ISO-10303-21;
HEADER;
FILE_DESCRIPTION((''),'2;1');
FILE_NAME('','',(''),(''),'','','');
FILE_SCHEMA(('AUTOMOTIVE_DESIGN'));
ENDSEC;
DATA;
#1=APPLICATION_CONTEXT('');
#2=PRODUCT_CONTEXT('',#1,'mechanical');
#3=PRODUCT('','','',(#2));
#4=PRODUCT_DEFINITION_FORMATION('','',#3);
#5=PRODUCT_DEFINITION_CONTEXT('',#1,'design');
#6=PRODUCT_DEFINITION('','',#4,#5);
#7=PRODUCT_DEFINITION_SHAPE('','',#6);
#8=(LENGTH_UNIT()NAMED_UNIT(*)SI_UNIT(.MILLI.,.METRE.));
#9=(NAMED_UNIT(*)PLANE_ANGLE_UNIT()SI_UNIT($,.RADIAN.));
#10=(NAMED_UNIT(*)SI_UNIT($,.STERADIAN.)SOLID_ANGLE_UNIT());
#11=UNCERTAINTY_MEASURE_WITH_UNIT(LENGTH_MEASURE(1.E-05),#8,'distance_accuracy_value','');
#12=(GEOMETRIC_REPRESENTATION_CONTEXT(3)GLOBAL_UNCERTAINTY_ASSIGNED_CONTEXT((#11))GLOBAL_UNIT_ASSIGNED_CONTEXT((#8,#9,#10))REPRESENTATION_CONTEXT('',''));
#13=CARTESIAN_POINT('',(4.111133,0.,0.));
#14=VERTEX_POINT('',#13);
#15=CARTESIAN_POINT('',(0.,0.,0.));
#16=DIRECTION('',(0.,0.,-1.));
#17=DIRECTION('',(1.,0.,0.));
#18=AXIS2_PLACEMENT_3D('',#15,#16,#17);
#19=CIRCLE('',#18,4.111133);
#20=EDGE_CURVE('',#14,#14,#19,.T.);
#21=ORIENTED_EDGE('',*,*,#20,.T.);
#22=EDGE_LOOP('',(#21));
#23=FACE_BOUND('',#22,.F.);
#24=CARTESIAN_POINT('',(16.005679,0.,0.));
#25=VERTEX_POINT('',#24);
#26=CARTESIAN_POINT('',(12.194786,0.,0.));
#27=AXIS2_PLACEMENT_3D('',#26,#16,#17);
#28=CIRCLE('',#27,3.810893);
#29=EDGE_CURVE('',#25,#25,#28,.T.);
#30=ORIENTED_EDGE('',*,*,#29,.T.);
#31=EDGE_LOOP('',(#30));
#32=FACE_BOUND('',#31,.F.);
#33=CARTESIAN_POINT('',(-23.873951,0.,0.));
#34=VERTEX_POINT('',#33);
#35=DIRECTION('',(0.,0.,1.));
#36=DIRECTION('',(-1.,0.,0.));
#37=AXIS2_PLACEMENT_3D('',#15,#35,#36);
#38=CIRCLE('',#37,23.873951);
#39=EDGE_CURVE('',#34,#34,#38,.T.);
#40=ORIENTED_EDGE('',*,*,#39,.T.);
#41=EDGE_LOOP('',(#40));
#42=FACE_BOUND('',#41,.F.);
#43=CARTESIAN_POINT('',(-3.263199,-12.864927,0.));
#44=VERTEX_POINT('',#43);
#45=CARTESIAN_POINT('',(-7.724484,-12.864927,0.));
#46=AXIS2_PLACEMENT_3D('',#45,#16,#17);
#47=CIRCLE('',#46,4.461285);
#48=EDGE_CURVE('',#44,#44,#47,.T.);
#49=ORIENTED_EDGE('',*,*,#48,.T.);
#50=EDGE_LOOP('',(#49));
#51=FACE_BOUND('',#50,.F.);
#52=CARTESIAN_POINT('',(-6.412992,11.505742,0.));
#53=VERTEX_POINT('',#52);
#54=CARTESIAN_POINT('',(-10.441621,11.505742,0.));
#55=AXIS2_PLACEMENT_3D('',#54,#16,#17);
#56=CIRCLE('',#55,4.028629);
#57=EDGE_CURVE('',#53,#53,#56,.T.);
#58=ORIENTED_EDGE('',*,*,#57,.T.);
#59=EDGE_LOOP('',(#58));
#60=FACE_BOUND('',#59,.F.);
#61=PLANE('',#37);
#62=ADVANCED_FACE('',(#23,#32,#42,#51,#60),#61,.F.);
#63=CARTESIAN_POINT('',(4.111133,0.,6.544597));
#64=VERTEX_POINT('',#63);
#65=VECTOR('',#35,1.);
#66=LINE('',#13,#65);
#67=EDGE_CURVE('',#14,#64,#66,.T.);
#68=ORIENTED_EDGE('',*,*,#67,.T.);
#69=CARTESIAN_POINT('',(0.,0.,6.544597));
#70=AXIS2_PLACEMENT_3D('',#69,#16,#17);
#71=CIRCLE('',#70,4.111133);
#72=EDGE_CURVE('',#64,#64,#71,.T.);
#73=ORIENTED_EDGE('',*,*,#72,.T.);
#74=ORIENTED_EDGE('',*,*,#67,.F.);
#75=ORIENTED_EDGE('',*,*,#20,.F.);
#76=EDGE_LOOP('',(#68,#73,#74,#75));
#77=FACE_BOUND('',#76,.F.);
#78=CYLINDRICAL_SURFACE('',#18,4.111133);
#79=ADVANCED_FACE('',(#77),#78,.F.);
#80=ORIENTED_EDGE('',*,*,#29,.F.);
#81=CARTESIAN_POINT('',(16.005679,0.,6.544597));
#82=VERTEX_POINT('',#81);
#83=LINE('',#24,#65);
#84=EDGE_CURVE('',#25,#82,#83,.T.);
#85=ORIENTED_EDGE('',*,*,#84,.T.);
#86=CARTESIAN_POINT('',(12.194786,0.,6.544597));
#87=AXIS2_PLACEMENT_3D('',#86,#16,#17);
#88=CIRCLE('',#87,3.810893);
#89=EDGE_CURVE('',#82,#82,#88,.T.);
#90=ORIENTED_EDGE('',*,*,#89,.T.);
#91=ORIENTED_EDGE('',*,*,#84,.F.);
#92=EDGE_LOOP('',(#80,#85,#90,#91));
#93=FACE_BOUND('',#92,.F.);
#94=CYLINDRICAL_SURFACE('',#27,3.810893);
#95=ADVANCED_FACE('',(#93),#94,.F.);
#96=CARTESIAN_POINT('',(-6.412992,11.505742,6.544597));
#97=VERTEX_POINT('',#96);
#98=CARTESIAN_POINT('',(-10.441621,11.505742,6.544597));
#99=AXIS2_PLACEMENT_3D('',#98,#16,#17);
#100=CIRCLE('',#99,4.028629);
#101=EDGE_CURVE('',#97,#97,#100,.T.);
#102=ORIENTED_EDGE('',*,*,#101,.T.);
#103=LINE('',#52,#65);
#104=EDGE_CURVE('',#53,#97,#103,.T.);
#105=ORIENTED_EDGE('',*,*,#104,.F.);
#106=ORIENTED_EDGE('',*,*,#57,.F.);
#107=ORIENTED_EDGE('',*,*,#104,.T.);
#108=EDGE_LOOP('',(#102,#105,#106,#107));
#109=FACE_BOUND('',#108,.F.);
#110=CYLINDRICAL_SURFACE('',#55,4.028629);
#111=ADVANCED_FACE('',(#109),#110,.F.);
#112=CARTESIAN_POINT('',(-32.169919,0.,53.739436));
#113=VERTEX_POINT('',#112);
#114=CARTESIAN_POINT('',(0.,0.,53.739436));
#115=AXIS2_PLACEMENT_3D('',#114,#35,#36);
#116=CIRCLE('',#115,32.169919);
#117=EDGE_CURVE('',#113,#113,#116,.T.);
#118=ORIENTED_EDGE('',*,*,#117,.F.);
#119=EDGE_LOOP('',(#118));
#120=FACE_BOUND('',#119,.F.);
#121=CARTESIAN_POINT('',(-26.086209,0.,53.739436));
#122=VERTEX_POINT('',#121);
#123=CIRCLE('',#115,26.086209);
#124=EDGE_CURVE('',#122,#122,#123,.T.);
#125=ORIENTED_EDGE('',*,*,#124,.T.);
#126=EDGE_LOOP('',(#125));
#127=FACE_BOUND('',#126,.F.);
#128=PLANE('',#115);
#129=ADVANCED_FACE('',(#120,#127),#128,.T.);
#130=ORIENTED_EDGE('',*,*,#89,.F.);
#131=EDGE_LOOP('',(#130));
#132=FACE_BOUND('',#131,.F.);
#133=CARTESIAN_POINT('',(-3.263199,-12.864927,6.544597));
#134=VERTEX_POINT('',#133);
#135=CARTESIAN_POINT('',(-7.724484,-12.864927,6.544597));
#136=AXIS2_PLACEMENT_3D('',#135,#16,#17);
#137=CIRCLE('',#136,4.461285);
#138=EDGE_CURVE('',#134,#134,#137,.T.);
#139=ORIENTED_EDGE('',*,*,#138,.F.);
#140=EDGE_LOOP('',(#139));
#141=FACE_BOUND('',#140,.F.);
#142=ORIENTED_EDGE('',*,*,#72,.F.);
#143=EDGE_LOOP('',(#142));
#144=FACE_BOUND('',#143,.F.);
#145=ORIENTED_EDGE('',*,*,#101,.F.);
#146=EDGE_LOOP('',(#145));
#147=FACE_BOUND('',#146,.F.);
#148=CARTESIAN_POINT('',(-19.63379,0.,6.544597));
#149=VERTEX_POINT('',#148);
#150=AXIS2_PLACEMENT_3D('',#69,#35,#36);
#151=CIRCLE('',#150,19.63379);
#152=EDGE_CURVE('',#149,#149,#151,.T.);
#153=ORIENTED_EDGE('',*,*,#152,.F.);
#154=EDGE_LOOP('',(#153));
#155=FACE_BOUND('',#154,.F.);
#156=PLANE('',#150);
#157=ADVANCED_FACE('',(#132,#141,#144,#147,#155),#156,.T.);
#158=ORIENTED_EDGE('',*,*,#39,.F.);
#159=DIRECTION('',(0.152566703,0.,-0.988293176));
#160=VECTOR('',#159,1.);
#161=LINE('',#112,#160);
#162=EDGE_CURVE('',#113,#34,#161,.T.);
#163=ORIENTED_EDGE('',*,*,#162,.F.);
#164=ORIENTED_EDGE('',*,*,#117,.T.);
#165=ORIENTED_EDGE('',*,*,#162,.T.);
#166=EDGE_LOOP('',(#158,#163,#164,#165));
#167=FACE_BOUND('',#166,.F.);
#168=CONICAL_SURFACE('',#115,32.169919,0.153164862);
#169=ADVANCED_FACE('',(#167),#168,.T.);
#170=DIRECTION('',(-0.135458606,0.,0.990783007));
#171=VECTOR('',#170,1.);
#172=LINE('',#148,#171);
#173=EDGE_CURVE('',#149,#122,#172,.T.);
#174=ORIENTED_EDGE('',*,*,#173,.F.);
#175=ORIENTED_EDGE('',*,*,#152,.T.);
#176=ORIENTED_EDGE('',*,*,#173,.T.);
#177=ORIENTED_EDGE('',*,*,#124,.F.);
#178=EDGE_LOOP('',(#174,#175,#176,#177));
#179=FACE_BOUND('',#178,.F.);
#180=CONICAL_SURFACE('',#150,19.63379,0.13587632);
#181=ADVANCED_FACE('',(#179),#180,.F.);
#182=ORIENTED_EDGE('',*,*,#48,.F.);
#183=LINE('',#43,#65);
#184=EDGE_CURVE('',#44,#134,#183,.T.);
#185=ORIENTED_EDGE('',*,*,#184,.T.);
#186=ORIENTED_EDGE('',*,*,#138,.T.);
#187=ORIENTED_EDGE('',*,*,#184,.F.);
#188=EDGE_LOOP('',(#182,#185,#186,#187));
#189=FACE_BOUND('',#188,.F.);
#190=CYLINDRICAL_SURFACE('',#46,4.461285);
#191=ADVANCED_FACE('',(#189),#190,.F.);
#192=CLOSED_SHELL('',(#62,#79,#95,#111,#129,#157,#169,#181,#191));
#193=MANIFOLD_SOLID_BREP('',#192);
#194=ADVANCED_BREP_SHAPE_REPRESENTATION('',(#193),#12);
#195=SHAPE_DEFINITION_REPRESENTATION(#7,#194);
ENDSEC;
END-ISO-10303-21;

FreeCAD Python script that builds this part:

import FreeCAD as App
import Part
import Sketcher
from FreeCAD import Vector
Q = App.Units.Quantity

doc = App.newDocument("Part")
body = doc.addObject("PartDesign::Body", "Body")

sketch1 = body.newObject("Sketcher::SketchObject", "Sketch")
sketch1.AttachmentSupport = (doc.getObject("XZ_Plane"), [""])
sketch1.MapMode = "FlatFace"
sketch1.addGeometry(Part.LineSegment(Vector(0, 0, 0), Vector(0, 7, 0)), False)
sketch1.addGeometry(Part.LineSegment(Vector(0, 7, 0), Vector(-20, 7, 0)), False)
sketch1.addGeometry(Part.LineSegment(Vector(-20, 7, 0), Vector(-26, 54, 0)), False)
sketch1.addGeometry(Part.LineSegment(Vector(-26, 54, 0), Vector(-32, 54, 0)), False)
sketch1.addGeometry(Part.LineSegment(Vector(-32, 54, 0), Vector(-24, 0, 0)), False)
sketch1.addGeometry(Part.LineSegment(Vector(-24, 0, 0), Vector(0, 0, 0)), False)
sketch1.addConstraint(Sketcher.Constraint("Coincident", 0, 2, 1, 1))
sketch1.addConstraint(Sketcher.Constraint("Coincident", 1, 2, 2, 1))
sketch1.addConstraint(Sketcher.Constraint("Coincident", 2, 2, 3, 1))
sketch1.addConstraint(Sketcher.Constraint("Coincident", 3, 2, 4, 1))
sketch1.addConstraint(Sketcher.Constraint("Coincident", 4, 2, 5, 1))
sketch1.addConstraint(Sketcher.Constraint("Coincident", 5, 2, 0, 1))
sketch1.addConstraint(Sketcher.Constraint("Vertical", 0))
sketch1.addConstraint(Sketcher.Constraint("Horizontal", 1))
sketch1.addConstraint(Sketcher.Constraint("Horizontal", 3))
sketch1.addConstraint(Sketcher.Constraint("Horizontal", 5))
sketch1.addConstraint(Sketcher.Constraint("Coincident", 5, 2, -1, 1))
sketch1.addConstraint(Sketcher.Constraint("DistanceX", 1, 2, 1, 1, Q("19.63379 mm")))
sketch1.addConstraint(Sketcher.Constraint("DistanceX", 3, 2, 3, 1, Q("6.08371 mm")))
sketch1.addConstraint(Sketcher.Constraint("DistanceX", 5, 1, 5, 2, Q("23.873951 mm")))
sketch1.addConstraint(Sketcher.Constraint("Distance", 2, Q("47.63388 mm")))
sketch1.addConstraint(Sketcher.Constraint("DistanceY", 0, 1, 0, 2, Q("6.544597 mm")))
sketch1.addConstraint(Sketcher.Constraint("DistanceX", 2, 2, -1, 1, Q("26.086209 mm")))
revolution = body.newObject("PartDesign::Revolution", "Revolution")
revolution.Profile = sketch1
revolution.ReferenceAxis = (sketch1, ["V_Axis"])
revolution.Angle = 360

sketch2 = body.newObject("Sketcher::SketchObject", "Sketch001")
sketch2.AttachmentSupport = (doc.getObject("XY_Plane"), [""])
sketch2.MapMode = "FlatFace"
sketch2.addGeometry(Part.Circle(Vector(0, 0, 0), Vector(0, 0, 1), 4.1), False)
sketch2.addGeometry(Part.Circle(Vector(-7.7, -12.9, 0), Vector(0, 0, 1), 4.5), False)
sketch2.addGeometry(Part.Circle(Vector(12.2, 0, 0), Vector(0, 0, 1), 3.8), False)
sketch2.addGeometry(Part.Circle(Vector(-10.4, 11.5, 0), Vector(0, 0, 1), 4), False)
sketch2.addConstraint(Sketcher.Constraint("Coincident", 0, 3, -1, 1))
sketch2.addConstraint(Sketcher.Constraint("PointOnObject", 2, 3, -1))
sketch2.addConstraint(Sketcher.Constraint("Diameter", 1, Q("8.92257 mm")))
sketch2.addConstraint(Sketcher.Constraint("Diameter", 0, Q("8.222266 mm")))
sketch2.addConstraint(Sketcher.Constraint("Diameter", 2, Q("7.621786 mm")))
sketch2.addConstraint(Sketcher.Constraint("Diameter", 3, Q("8.057258 mm")))
sketch2.addConstraint(Sketcher.Constraint("DistanceX", 3, 3, -1, 1, Q("10.441621 mm")))
sketch2.addConstraint(Sketcher.Constraint("DistanceX", 1, 3, 2, 3, Q("19.91927 mm")))
sketch2.addConstraint(Sketcher.Constraint("DistanceY", 1, 3, 3, 3, Q("24.370669 mm")))
sketch2.addConstraint(Sketcher.Constraint("DistanceX", 1, 3, -1, 1, Q("7.724484 mm")))
sketch2.addConstraint(Sketcher.Constraint("DistanceY", 1, 3, -1, 1, Q("12.864927 mm")))
pocket1 = body.newObject("PartDesign::Pocket", "Pocket")
pocket1.Profile = sketch2
pocket1.Length = Q("1 in")
pocket1.Reversed = True

doc.recompute()
